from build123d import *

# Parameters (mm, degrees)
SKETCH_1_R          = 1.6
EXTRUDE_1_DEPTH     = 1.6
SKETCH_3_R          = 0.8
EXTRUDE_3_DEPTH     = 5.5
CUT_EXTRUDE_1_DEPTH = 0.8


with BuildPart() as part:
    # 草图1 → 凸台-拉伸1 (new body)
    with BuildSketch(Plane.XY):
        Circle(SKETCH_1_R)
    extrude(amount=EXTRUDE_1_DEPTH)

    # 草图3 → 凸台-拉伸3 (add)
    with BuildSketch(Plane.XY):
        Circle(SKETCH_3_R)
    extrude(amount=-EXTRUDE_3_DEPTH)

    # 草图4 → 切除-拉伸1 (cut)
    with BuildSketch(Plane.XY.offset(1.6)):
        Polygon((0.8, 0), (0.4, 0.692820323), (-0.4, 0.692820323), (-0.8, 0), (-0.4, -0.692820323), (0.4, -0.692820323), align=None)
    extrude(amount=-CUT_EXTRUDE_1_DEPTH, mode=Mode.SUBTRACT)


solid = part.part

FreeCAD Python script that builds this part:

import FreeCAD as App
import Part
import Sketcher
from FreeCAD import Vector
Q = App.Units.Quantity

doc = App.newDocument("Part")
params = doc.addObject("Spreadsheet::Sheet", "Params")
for row, (alias, value) in enumerate([
    ("sketch1_diameter", "3.2 mm"),
    ("pad1_length", "1.6 mm"),
    ("sketch2_diameter", "1.6 mm"),
    ("pad2_length", "5.5 mm"),
    ("sketch3_width", "0.8 mm"),
    ("sketch3_length", "0.8 mm"),
    ("pocket1_length", "0.8 mm"),
], start=1):
    params.set(f"A{row}", alias)
    params.set(f"B{row}", "=" + value)
    params.setAlias(f"B{row}", alias)

body = doc.addObject("PartDesign::Body", "Body")

# Sketch on XY plane
sketch1 = body.newObject("Sketcher::SketchObject", "Sketch")
sketch1.AttachmentSupport = (doc.getObject("XY_Plane"), [""])
sketch1.MapMode = "FlatFace"
sketch1.addGeometry(Part.Circle(Vector(0, 0, 0), Vector(0, 0, 1), 1.6), False)
sketch1.addConstraint([
    Sketcher.Constraint("Coincident", 0, 3, -1, 1),
    Sketcher.Constraint("Diameter", 0, 3.2),
])
sketch1.setExpression("Constraints[1]", "Params.sketch1_diameter")
pad1 = body.newObject("PartDesign::Pad", "Pad")
pad1.Profile = sketch1
pad1.setExpression("Length", "Params.pad1_length")

# Sketch on XY plane
sketch2 = body.newObject("Sketcher::SketchObject", "Sketch001")
sketch2.AttachmentSupport = (doc.getObject("XY_Plane"), [""])
sketch2.MapMode = "FlatFace"
sketch2.addGeometry(Part.Circle(Vector(0, 0, 0), Vector(0, 0, 1), 0.8), False)
sketch2.addConstraint([
    Sketcher.Constraint("Coincident", 0, 3, -1, 1),
    Sketcher.Constraint("Diameter", 0, 1.6),
])
sketch2.setExpression("Constraints[1]", "Params.sketch2_diameter")
pad2 = body.newObject("PartDesign::Pad", "Pad001")
pad2.Profile = sketch2
pad2.setExpression("Length", "Params.pad2_length")
pad2.Reversed = True

# Sketch on XY plane
sketch3 = body.newObject("Sketcher::SketchObject", "Sketch002")
sketch3.AttachmentSupport = (doc.getObject("XY_Plane"), [""])
sketch3.MapMode = "FlatFace"
sketch3.AttachmentOffset = App.Placement(Vector(0, 0, 1.6), App.Rotation())
sketch3.addGeometry([
    Part.LineSegment(Vector(0.8, 0, 0), Vector(0.4, 0.7, 0)),  # 0
    Part.LineSegment(Vector(0.4, 0.7, 0), Vector(-0.4, 0.7, 0)),  # 1
    Part.LineSegment(Vector(-0.4, 0.7, 0), Vector(-0.8, 0, 0)),  # 2
    Part.LineSegment(Vector(-0.8, 0, 0), Vector(-0.4, -0.7, 0)),  # 3
    Part.LineSegment(Vector(-0.4, -0.7, 0), Vector(0.4, -0.7, 0)),  # 4
    Part.LineSegment(Vector(0.4, -0.7, 0), Vector(0.8, 0, 0)),  # 5
], False)
sketch3.addConstraint([
    Sketcher.Constraint("Coincident", 0, 2, 1, 1),
    Sketcher.Constraint("Coincident", 1, 2, 2, 1),
    Sketcher.Constraint("Coincident", 2, 2, 3, 1),
    Sketcher.Constraint("Coincident", 3, 2, 4, 1),
    Sketcher.Constraint("Coincident", 4, 2, 5, 1),
    Sketcher.Constraint("Coincident", 5, 2, 0, 1),
    Sketcher.Constraint("Horizontal", 1),
    Sketcher.Constraint("Horizontal", 4),
    Sketcher.Constraint("Symmetric", 0, 2, 3, 2, -1, 1),
    Sketcher.Constraint("Symmetric", 2, 2, 5, 2, -1, 1),
    Sketcher.Constraint("PointOnObject", 2, 2, -1),
    Sketcher.Constraint("Parallel", 2, 5),
    Sketcher.Constraint("Vertical", 1, 2, 3, 2),
    Sketcher.Constraint("Angle", 0, Q("120 deg")),
    Sketcher.Constraint("DistanceX", 1, 2, 1, 1, 0.8),
    Sketcher.Constraint("Distance", 0, 0.8),
])
sketch3.setExpression("Constraints[14]", "Params.sketch3_width")
sketch3.setExpression("Constraints[15]", "Params.sketch3_length")
pocket1 = body.newObject("PartDesign::Pocket", "Pocket")
pocket1.Profile = sketch3
pocket1.setExpression("Length", "Params.pocket1_length")

doc.recompute()
